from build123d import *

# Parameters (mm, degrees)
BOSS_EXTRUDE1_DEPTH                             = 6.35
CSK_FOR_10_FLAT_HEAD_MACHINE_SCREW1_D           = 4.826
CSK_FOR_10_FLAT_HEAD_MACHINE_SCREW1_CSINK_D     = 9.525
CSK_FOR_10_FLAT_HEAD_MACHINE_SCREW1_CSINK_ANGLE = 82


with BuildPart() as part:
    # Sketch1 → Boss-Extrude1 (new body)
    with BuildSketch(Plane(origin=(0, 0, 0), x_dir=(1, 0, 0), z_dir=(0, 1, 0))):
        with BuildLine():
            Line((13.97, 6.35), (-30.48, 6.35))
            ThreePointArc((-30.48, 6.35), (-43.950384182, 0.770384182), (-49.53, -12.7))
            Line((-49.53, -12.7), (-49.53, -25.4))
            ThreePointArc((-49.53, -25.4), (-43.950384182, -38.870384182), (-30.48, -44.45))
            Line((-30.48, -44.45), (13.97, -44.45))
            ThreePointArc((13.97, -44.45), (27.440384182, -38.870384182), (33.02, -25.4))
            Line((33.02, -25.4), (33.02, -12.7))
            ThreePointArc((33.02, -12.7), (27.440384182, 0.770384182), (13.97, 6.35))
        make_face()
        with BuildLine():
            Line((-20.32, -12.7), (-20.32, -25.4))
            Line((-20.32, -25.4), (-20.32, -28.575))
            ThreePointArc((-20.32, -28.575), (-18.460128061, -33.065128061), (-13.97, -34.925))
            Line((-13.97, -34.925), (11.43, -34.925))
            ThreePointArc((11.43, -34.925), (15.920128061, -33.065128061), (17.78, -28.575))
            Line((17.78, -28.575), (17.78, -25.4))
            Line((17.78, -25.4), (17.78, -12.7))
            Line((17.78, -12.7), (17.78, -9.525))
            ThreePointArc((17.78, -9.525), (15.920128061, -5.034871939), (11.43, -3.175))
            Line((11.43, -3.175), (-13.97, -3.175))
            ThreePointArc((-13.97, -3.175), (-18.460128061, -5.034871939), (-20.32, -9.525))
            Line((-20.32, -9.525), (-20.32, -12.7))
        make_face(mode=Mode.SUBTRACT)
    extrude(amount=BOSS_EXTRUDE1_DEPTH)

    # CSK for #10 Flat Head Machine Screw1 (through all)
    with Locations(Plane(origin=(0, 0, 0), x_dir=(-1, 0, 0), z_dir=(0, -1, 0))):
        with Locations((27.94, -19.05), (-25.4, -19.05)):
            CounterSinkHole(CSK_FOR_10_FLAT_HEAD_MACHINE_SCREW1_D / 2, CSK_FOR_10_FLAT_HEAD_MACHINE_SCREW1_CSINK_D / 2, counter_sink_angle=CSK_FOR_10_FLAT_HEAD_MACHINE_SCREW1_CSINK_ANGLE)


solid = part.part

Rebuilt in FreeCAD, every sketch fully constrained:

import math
import FreeCAD as App
import Part
import Sketcher
Q = App.Units.Quantity

doc = App.newDocument("Part")
body = doc.addObject("PartDesign::Body", "Body")

# Sketch on XZ plane
sketch1 = body.newObject("Sketcher::SketchObject", "Sketch")
sketch1.AttachmentSupport = (doc.getObject("XZ_Plane"), [""])
sketch1.MapMode = "FlatFace"
sketch1.addGeometry([
    Part.LineSegment(App.Vector(13.97, -6.35, 0), App.Vector(-30.48, -6.35, 0)),  # 0
    Part.ArcOfCircle(Part.Circle(App.Vector(-30.48, 12.7, 0), App.Vector(0, 0, 1), 19.05), math.radians(180), math.radians(270)),  # 1
    Part.LineSegment(App.Vector(-49.53, 12.7, 0), App.Vector(-49.53, 25.4, 0)),  # 2
    Part.ArcOfCircle(Part.Circle(App.Vector(-30.48, 25.4, 0), App.Vector(0, 0, 1), 19.05), math.radians(90), math.radians(180)),  # 3
    Part.LineSegment(App.Vector(-30.48, 44.45, 0), App.Vector(13.97, 44.45, 0)),  # 4
    Part.ArcOfCircle(Part.Circle(App.Vector(13.97, 25.4, 0), App.Vector(0, 0, 1), 19.05), math.radians(0), math.radians(90)),  # 5
    Part.LineSegment(App.Vector(33.02, 25.4, 0), App.Vector(33.02, 12.7, 0)),  # 6
    Part.ArcOfCircle(Part.Circle(App.Vector(13.97, 12.7, 0), App.Vector(0, 0, 1), 19.05), math.radians(-90), math.radians(0)),  # 7
    Part.ArcOfCircle(Part.Circle(App.Vector(-13.97, 28.575, 0), App.Vector(0, 0, 1), 6.35), math.radians(90), math.radians(180)),  # 8
    Part.LineSegment(App.Vector(-20.32, 28.575, 0), App.Vector(-20.32, 9.525, 0)),  # 9
    Part.ArcOfCircle(Part.Circle(App.Vector(-13.97, 9.525, 0), App.Vector(0, 0, 1), 6.35), math.radians(180), math.radians(270)),  # 10
    Part.LineSegment(App.Vector(-13.97, 3.175, 0), App.Vector(11.43, 3.175, 0)),  # 11
    Part.ArcOfCircle(Part.Circle(App.Vector(11.43, 9.525, 0), App.Vector(0, 0, 1), 6.35), math.radians(-90), math.radians(0)),  # 12
    Part.LineSegment(App.Vector(17.78, 9.525, 0), App.Vector(17.78, 28.575, 0)),  # 13
    Part.ArcOfCircle(Part.Circle(App.Vector(11.43, 28.575, 0), App.Vector(0, 0, 1), 6.35), math.radians(0), math.radians(90)),  # 14
    Part.LineSegment(App.Vector(11.43, 34.925, 0), App.Vector(-13.97, 34.925, 0)),  # 15
], False)
sketch1.addConstraint([
    Sketcher.Constraint("Tangent", 0, 2, 1, 2),
    Sketcher.Constraint("Tangent", 1, 1, 2, 1),
    Sketcher.Constraint("Tangent", 2, 2, 3, 2),
    Sketcher.Constraint("Tangent", 3, 1, 4, 1),
    Sketcher.Constraint("Tangent", 4, 2, 5, 2),
    Sketcher.Constraint("Tangent", 5, 1, 6, 1),
    Sketcher.Constraint("Tangent", 6, 2, 7, 2),
    Sketcher.Constraint("Tangent", 7, 1, 0, 1),
    Sketcher.Constraint("Tangent", 8, 2, 9, 1),
    Sketcher.Constraint("Tangent", 9, 2, 10, 1),
    Sketcher.Constraint("Tangent", 10, 2, 11, 1),
    Sketcher.Constraint("Tangent", 11, 2, 12, 1),
    Sketcher.Constraint("Tangent", 12, 2, 13, 1),
    Sketcher.Constraint("Tangent", 13, 2, 14, 1),
    Sketcher.Constraint("Tangent", 14, 2, 15, 1),
    Sketcher.Constraint("Tangent", 15, 2, 8, 1),
    Sketcher.Constraint("Horizontal", 0),
    Sketcher.Constraint("Vertical", 2),
    Sketcher.Constraint("Horizontal", 4),
    Sketcher.Constraint("Vertical", 6),
    Sketcher.Constraint("Vertical", 9),
    Sketcher.Constraint("Horizontal", 11),
    Sketcher.Constraint("Vertical", 13),
    Sketcher.Constraint("Horizontal", 15),
    Sketcher.Constraint("Equal", 1, 3),
    Sketcher.Constraint("Equal", 3, 5),
    Sketcher.Constraint("Equal", 5, 7),
    Sketcher.Constraint("Equal", 8, 10),
    Sketcher.Constraint("Equal", 10, 12),
    Sketcher.Constraint("Equal", 12, 14),
    Sketcher.Constraint("DistanceX", 11, 1, 11, 2, Q("1 in")),
    Sketcher.Constraint("Radius", 1, Q("0.75 in")),
    Sketcher.Constraint("Radius", 8, Q("0.25 in")),
    Sketcher.Constraint("DistanceY", 2, 1, 2, 2, Q("0.5 in")),
    Sketcher.Constraint("DistanceY", -1, 1, 3, 3, Q("1 in")),
    Sketcher.Constraint("DistanceY", 10, 2, 8, 3, Q("1 in")),
    Sketcher.Constraint("DistanceX", 0, 2, 0, 1, Q("1.75 in")),
    Sketcher.Constraint("DistanceX", 1, 3, -1, 1, Q("1.2 in")),
    Sketcher.Constraint("DistanceX", 8, 2, -1, 1, Q("0.8 in")),
    Sketcher.Constraint("DistanceY", -1, 1, 8, 3, Q("1.125 in")),
])
pad1 = body.newObject("PartDesign::Pad", "Pad")
pad1.Profile = sketch1
pad1.Length = Q("0.25 in")
pad1.Reversed = True

# Sketch on XZ plane
sketch2 = body.newObject("Sketcher::SketchObject", "Sketch001")
sketch2.AttachmentSupport = (doc.getObject("XZ_Plane"), [""])
sketch2.MapMode = "FlatFace"
sketch2.addGeometry([
    Part.Circle(App.Vector(-27.94, 19.05, 0), App.Vector(0, 0, 1), 2.413),
    Part.Circle(App.Vector(25.4, 19.05, 0), App.Vector(0, 0, 1), 2.413),
], False)
sketch2.addConstraint([
    Sketcher.Constraint("Equal", 0, 1),
    Sketcher.Constraint("Horizontal", 0, 3, 1, 3),
    Sketcher.Constraint("Diameter", 0, Q("0.19 in")),
    Sketcher.Constraint("DistanceX", -1, 1, 1, 3, Q("1 in")),
    Sketcher.Constraint("DistanceX", 0, 3, -1, 1, Q("1.1 in")),
    Sketcher.Constraint("DistanceY", -1, 1, 0, 3, Q("0.75 in")),
])
doc.recompute()
hole = body.newObject("PartDesign::Hole", "Hole")
hole.Profile = sketch2
hole.ThreadType = "None"
hole.Diameter = Q("0.19 in")
hole.DepthType = "ThroughAll"
hole.HoleCutType = "Countersink"
hole.HoleCutDiameter = Q("0.375 in")
hole.HoleCutCountersinkAngle = 82

doc.recompute()
